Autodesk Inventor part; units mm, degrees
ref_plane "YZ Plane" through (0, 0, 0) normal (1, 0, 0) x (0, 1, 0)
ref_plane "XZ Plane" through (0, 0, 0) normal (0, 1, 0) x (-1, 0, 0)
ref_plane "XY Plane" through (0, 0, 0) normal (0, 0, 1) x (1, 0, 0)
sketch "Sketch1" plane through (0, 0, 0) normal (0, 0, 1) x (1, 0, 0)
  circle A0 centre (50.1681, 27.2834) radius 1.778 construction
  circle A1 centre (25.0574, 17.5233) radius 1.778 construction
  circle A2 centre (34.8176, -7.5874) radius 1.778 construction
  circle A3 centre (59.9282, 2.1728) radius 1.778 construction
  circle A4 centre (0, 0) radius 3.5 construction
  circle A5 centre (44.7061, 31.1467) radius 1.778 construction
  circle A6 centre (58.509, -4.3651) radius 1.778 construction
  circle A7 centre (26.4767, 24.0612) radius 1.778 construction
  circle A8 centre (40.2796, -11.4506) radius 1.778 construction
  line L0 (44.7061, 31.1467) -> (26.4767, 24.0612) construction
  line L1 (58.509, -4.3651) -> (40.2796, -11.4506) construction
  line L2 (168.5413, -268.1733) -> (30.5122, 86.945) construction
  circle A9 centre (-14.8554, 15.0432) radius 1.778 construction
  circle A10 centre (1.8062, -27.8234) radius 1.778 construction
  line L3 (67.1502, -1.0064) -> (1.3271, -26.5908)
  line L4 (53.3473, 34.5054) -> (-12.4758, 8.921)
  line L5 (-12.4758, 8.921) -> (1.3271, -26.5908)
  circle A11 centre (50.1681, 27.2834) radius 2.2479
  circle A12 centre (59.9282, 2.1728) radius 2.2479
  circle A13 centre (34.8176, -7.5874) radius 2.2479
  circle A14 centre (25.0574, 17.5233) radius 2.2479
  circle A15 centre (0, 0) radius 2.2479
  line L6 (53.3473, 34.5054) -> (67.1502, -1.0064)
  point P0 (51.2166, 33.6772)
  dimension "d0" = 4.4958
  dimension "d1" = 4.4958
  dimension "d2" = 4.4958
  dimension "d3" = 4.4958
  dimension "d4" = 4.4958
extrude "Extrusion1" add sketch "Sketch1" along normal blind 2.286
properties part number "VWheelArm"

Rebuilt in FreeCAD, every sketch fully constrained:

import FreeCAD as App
import Part
import Sketcher
Q = App.Units.Quantity


def add_polygon(sketch, points):
    """Adds a closed chain of lines whose ends are joined by coincident constraints."""
    first, n = sketch.GeometryCount, len(points)
    for a, b in zip(points, points[1:] + points[:1]):
        sketch.addGeometry(Part.LineSegment(App.Vector(*a, 0), App.Vector(*b, 0)), False)
    for i in range(n):
        sketch.addConstraint(Sketcher.Constraint("Coincident", first + i, 2, first + (i + 1) % n, 1))

doc = App.newDocument("Part")
params = doc.addObject("Spreadsheet::Sheet", "Params")
for row, (alias, value) in enumerate([
    ("sketch1_diameter", "0.177 in"),
    ("sketch1_length", "1.5 in"),
    ("pad1_length", "0.09 in"),
], start=1):
    params.set(f"A{row}", alias)
    params.set(f"B{row}", "=" + value)
    params.setAlias(f"B{row}", alias)

body = doc.addObject("PartDesign::Body", "Body")

sketch1 = doc.addObject("Sketcher::SketchObject", "Sketch")
body.addObject(sketch1)
sketch1.AttachmentSupport = (doc.XY_Plane, [""])
sketch1.MapMode = "FlatFace"
add_polygon(sketch1, [(1.3271, -26.5908), (67.1502, -1.0064), (53.3473, 34.5054), (-12.4758, 8.921)])
sketch1.addGeometry(Part.Circle(App.Vector(0, 0, 0), App.Vector(0, 0, 1), 2.2479), False)
sketch1.addGeometry(Part.Circle(App.Vector(34.8176, -7.5874, 0), App.Vector(0, 0, 1), 2.2479), False)
sketch1.addGeometry(Part.Circle(App.Vector(59.9282, 2.1728, 0), App.Vector(0, 0, 1), 2.2479), False)
sketch1.addGeometry(Part.Circle(App.Vector(25.0574, 17.5233, 0), App.Vector(0, 0, 1), 2.2479), False)
sketch1.addGeometry(Part.Circle(App.Vector(50.1681, 27.2834, 0), App.Vector(0, 0, 1), 2.2479), False)
sketch1.addConstraint([
    Sketcher.Constraint("Coincident", 4, 3, -1, 1),
    Sketcher.Constraint("Equal", 4, 5),
    Sketcher.Constraint("Equal", 5, 6),
    Sketcher.Constraint("Equal", 6, 7),
    Sketcher.Constraint("Equal", 7, 8),
    Sketcher.Constraint("Perpendicular", 0, 1),
    Sketcher.Constraint("Perpendicular", 1, 2),
    Sketcher.Constraint("Perpendicular", 2, 3),
    Sketcher.Constraint("Diameter", 4, Q("0.177 in")),
    Sketcher.Constraint("Distance", 1, Q("1.5 in")),
    Sketcher.Constraint("Angle", 0, Q("21.2403 deg")),
    Sketcher.Constraint("DistanceX", -1, 1, 6, 3, Q("2.359378 in")),
    Sketcher.Constraint("DistanceY", 3, 2, -1, 1, Q("1.0468819 in")),
    Sketcher.Constraint("DistanceX", -1, 1, 7, 3, Q("0.9865 in")),
    Sketcher.Constraint("DistanceY", -1, 1, 7, 3, Q("0.6899 in")),
    Sketcher.Constraint("DistanceX", -1, 1, 0, 2, Q("2.6437 in")),
    Sketcher.Constraint("DistanceX", 5, 3, 6, 3, Q("0.9886 in")),
    Sketcher.Constraint("DistanceY", 5, 3, 7, 3, Q("0.9886 in")),
    Sketcher.Constraint("DistanceY", 6, 3, 8, 3, Q("0.9886 in")),
    Sketcher.Constraint("DistanceX", 7, 3, 8, 3, Q("0.9886 in")),
    Sketcher.Constraint("DistanceY", 5, 3, 0, 2, Q("0.2591 in")),
    Sketcher.Constraint("DistanceY", -1, 1, 6, 3, 2.1728),
])
sketch1.setExpression("Constraints[12]", "Params.sketch1_diameter")
sketch1.setExpression("Constraints[13]", "Params.sketch1_length")
pad1 = doc.addObject("PartDesign::Pad", "Pad")
body.addObject(pad1)
pad1.Profile = sketch1
pad1.setExpression("Length", "Params.pad1_length")

doc.recompute()
